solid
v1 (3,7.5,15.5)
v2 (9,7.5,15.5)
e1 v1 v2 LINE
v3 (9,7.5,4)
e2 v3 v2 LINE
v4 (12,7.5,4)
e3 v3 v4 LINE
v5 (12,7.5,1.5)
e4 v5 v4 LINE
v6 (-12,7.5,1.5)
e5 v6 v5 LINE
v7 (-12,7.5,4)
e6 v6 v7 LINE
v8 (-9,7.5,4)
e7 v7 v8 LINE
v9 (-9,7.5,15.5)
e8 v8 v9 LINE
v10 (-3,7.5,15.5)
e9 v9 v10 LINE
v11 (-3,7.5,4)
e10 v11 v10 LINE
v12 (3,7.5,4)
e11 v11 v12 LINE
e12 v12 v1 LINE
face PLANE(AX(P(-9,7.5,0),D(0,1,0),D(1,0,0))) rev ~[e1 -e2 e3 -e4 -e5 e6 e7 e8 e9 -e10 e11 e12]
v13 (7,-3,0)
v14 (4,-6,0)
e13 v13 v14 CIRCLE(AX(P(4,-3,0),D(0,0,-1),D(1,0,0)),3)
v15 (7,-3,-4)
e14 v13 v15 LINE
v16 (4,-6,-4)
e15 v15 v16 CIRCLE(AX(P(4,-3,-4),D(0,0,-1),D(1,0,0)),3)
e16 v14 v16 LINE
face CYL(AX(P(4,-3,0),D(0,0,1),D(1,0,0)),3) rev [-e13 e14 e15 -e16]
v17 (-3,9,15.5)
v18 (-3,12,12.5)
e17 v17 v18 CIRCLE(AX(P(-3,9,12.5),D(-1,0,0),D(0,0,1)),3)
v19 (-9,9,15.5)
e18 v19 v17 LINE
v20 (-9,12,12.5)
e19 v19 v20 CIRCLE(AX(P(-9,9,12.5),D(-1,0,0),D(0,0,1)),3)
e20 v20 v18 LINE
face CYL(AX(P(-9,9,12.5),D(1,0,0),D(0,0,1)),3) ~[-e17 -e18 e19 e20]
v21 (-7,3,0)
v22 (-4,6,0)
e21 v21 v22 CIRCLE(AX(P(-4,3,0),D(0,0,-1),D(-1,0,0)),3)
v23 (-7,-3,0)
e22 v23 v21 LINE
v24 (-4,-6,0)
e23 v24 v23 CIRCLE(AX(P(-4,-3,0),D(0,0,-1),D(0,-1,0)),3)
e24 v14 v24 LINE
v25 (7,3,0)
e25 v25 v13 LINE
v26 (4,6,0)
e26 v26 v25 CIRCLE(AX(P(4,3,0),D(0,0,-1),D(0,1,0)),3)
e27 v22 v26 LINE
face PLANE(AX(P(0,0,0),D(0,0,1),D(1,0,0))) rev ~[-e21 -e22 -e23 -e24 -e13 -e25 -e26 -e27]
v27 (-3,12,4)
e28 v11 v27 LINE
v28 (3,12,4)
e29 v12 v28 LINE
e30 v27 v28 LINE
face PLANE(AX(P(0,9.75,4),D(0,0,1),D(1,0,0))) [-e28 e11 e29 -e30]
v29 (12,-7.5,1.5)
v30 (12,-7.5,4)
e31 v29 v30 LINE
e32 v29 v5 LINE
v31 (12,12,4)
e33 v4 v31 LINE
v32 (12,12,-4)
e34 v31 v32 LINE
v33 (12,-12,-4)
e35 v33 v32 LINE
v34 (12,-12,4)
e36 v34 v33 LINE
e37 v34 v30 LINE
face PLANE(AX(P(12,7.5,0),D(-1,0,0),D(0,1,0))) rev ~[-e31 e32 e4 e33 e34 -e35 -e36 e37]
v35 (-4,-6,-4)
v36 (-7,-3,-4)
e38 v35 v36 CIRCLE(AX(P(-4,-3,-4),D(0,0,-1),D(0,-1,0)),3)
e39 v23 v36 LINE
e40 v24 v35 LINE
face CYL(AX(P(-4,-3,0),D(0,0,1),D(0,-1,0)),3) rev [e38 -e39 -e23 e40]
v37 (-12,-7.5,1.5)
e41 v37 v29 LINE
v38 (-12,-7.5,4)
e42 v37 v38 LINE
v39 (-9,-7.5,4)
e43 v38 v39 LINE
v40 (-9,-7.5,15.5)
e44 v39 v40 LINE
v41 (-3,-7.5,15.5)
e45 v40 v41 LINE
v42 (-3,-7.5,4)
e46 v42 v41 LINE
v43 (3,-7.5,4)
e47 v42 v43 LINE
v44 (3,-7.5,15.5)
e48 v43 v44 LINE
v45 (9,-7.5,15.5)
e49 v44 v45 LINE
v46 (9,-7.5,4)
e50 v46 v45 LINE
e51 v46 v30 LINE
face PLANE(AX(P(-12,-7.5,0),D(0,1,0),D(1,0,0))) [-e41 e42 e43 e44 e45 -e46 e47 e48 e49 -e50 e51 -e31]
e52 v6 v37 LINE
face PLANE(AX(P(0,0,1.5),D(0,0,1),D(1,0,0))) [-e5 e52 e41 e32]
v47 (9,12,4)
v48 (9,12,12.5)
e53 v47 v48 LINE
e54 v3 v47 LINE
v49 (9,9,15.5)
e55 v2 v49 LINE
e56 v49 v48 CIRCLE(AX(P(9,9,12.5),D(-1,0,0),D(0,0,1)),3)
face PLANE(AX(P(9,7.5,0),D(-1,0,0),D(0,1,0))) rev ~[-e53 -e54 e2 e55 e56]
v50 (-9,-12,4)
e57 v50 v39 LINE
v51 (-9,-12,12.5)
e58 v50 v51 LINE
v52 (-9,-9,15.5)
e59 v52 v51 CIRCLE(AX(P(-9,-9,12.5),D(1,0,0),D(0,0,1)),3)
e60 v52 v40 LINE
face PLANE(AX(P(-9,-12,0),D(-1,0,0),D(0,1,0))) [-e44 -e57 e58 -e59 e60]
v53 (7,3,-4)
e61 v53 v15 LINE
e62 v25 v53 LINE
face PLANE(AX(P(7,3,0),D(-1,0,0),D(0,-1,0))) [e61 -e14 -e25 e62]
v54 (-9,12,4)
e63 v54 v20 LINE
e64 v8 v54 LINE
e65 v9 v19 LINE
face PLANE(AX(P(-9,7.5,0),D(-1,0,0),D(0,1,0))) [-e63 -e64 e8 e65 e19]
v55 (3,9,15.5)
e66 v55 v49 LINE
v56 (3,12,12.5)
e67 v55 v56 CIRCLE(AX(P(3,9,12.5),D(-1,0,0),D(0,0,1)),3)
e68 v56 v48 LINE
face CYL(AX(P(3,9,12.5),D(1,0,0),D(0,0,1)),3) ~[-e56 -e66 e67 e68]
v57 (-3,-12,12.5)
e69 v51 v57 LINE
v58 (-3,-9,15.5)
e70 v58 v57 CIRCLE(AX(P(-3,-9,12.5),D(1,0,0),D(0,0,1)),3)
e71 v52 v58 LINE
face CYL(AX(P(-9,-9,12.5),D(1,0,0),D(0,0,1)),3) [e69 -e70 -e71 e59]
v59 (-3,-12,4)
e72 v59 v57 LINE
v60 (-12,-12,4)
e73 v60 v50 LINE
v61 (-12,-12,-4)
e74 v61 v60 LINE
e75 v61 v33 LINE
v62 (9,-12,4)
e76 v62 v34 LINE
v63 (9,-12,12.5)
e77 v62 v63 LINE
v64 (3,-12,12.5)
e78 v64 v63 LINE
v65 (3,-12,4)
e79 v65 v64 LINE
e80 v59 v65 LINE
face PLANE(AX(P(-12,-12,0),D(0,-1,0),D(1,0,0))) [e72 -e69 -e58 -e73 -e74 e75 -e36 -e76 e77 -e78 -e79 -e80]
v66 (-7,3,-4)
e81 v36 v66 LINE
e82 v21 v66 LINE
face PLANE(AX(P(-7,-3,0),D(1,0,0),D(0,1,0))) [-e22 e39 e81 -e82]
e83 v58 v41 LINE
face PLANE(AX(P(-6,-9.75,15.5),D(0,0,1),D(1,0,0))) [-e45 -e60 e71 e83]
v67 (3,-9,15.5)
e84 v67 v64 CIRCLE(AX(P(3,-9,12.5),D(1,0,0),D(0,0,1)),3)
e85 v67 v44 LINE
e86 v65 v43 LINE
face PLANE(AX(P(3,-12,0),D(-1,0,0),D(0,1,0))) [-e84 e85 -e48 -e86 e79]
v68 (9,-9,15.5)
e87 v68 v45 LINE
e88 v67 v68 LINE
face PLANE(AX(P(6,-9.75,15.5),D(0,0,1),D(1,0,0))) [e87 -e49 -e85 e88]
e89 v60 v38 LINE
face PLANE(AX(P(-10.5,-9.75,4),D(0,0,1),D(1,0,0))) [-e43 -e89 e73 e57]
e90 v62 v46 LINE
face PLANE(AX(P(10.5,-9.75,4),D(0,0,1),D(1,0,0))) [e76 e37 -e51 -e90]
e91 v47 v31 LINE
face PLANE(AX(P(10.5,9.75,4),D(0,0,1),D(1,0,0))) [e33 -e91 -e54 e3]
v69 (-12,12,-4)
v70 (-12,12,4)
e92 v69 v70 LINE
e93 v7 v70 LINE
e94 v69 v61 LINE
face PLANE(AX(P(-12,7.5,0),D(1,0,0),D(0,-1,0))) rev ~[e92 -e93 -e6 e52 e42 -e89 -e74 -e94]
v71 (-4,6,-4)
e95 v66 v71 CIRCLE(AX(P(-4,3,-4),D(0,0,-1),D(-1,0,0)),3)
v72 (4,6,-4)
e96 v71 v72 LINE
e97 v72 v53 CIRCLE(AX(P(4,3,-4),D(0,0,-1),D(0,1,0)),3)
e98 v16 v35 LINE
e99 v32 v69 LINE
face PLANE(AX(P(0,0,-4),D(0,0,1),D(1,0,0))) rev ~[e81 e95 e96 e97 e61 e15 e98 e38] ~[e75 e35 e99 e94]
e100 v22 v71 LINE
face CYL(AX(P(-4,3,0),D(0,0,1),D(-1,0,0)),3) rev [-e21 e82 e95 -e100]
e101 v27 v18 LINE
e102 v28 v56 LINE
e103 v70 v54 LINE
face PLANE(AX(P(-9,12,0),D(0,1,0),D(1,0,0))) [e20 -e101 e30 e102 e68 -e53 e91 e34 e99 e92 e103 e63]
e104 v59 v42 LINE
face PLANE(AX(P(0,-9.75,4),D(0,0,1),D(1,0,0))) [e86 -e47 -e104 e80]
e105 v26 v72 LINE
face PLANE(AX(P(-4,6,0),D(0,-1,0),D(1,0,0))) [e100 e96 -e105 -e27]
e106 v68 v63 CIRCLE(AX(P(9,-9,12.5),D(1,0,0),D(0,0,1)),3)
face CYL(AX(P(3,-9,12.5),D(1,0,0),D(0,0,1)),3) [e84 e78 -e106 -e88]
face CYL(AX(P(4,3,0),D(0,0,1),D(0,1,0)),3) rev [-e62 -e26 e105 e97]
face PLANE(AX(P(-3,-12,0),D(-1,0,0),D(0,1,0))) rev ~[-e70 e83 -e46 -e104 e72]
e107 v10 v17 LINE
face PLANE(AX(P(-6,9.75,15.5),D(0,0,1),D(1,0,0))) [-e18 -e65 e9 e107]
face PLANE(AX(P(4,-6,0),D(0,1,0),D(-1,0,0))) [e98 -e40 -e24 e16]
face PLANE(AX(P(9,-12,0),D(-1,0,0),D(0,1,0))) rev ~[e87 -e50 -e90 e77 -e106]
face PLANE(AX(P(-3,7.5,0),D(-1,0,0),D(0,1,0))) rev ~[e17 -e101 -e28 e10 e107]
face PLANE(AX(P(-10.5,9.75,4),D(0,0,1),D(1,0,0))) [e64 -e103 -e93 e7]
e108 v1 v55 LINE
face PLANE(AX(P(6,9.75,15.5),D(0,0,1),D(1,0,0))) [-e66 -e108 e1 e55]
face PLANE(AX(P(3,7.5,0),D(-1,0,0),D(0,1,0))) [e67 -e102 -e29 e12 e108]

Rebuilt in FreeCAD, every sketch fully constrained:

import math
import FreeCAD as App
import Part
import Sketcher
from FreeCAD import Vector
Q = App.Units.Quantity


def edges_at(feature, points):
    """Names of the edges that pass closest to the given points."""
    edges = feature.Shape.Edges
    near = lambda p: min(range(len(edges)), key=lambda i: edges[i].distToShape(Part.Vertex(*p))[0])
    return sorted({f"Edge{near(p) + 1}" for p in points})

doc = App.newDocument("Part")
body = doc.addObject("PartDesign::Body", "Body")

sketch1 = body.newObject("Sketcher::SketchObject", "Sketch")
sketch1.AttachmentSupport = (doc.getObject("XY_Plane"), [""])
sketch1.MapMode = "FlatFace"
sketch1.addGeometry(Part.LineSegment(Vector(-12, 12, 0), Vector(-12, -12, 0)), False)
sketch1.addGeometry(Part.LineSegment(Vector(-12, -12, 0), Vector(12, -12, 0)), False)
sketch1.addGeometry(Part.LineSegment(Vector(12, -12, 0), Vector(12, 12, 0)), False)
sketch1.addGeometry(Part.LineSegment(Vector(12, 12, 0), Vector(-12, 12, 0)), False)
sketch1.addGeometry(Part.LineSegment(Vector(7, 3, 0), Vector(7, -3, 0)), False)
sketch1.addGeometry(Part.ArcOfCircle(Part.Circle(Vector(4, -3, 0), Vector(0, 0, 1), 3), math.radians(-90), math.radians(0)), False)
sketch1.addGeometry(Part.LineSegment(Vector(4, -6, 0), Vector(-4, -6, 0)), False)
sketch1.addGeometry(Part.ArcOfCircle(Part.Circle(Vector(-4, -3, 0), Vector(0, 0, 1), 3), math.radians(180), math.radians(270)), False)
sketch1.addGeometry(Part.LineSegment(Vector(-7, -3, 0), Vector(-7, 3, 0)), False)
sketch1.addGeometry(Part.ArcOfCircle(Part.Circle(Vector(-4, 3, 0), Vector(0, 0, 1), 3), math.radians(90), math.radians(180)), False)
sketch1.addGeometry(Part.LineSegment(Vector(-4, 6, 0), Vector(4, 6, 0)), False)
sketch1.addGeometry(Part.ArcOfCircle(Part.Circle(Vector(4, 3, 0), Vector(0, 0, 1), 3), math.radians(0), math.radians(90)), False)
sketch1.addConstraint(Sketcher.Constraint("Coincident", 0, 2, 1, 1))
sketch1.addConstraint(Sketcher.Constraint("Coincident", 1, 2, 2, 1))
sketch1.addConstraint(Sketcher.Constraint("Coincident", 2, 2, 3, 1))
sketch1.addConstraint(Sketcher.Constraint("Coincident", 3, 2, 0, 1))
sketch1.addConstraint(Sketcher.Constraint("Tangent", 4, 2, 5, 2))
sketch1.addConstraint(Sketcher.Constraint("Tangent", 5, 1, 6, 1))
sketch1.addConstraint(Sketcher.Constraint("Tangent", 6, 2, 7, 2))
sketch1.addConstraint(Sketcher.Constraint("Tangent", 7, 1, 8, 1))
sketch1.addConstraint(Sketcher.Constraint("Tangent", 8, 2, 9, 2))
sketch1.addConstraint(Sketcher.Constraint("Tangent", 9, 1, 10, 1))
sketch1.addConstraint(Sketcher.Constraint("Tangent", 10, 2, 11, 2))
sketch1.addConstraint(Sketcher.Constraint("Tangent", 11, 1, 4, 1))
sketch1.addConstraint(Sketcher.Constraint("Vertical", 0))
sketch1.addConstraint(Sketcher.Constraint("Horizontal", 1))
sketch1.addConstraint(Sketcher.Constraint("Vertical", 2))
sketch1.addConstraint(Sketcher.Constraint("Horizontal", 3))
sketch1.addConstraint(Sketcher.Constraint("Vertical", 4))
sketch1.addConstraint(Sketcher.Constraint("Horizontal", 6))
sketch1.addConstraint(Sketcher.Constraint("Vertical", 8))
sketch1.addConstraint(Sketcher.Constraint("Horizontal", 10))
sketch1.addConstraint(Sketcher.Constraint("Equal", 5, 7))
sketch1.addConstraint(Sketcher.Constraint("Equal", 7, 9))
sketch1.addConstraint(Sketcher.Constraint("Equal", 9, 11))
sketch1.addConstraint(Sketcher.Constraint("Symmetric", 5, 3, 9, 3, -1, 1))
sketch1.addConstraint(Sketcher.Constraint("Symmetric", 0, 2, 2, 2, -1, 1))
sketch1.addConstraint(Sketcher.Constraint("Equal", 3, 0))
sketch1.addConstraint(Sketcher.Constraint("Radius", 5, Q("3 mm")))
sketch1.addConstraint(Sketcher.Constraint("DistanceX", 1, 1, 1, 2, Q("24 mm")))
sketch1.addConstraint(Sketcher.Constraint("DistanceX", 6, 2, 6, 1, Q("8 mm")))
sketch1.addConstraint(Sketcher.Constraint("DistanceY", 4, 2, 4, 1, Q("6 mm")))
pad1 = body.newObject("PartDesign::Pad", "Pad")
pad1.Profile = sketch1
pad1.Length = 4
pad1.Reversed = True

sketch2 = body.newObject("Sketcher::SketchObject", "Sketch001")
sketch2.AttachmentSupport = (doc.getObject("XY_Plane"), [""])
sketch2.MapMode = "FlatFace"
sketch2.addGeometry(Part.LineSegment(Vector(12, -8, 0), Vector(12, 8, 0)), False)
sketch2.addGeometry(Part.LineSegment(Vector(12, 8, 0), Vector(-12, 8, 0)), False)
sketch2.addGeometry(Part.LineSegment(Vector(-12, 8, 0), Vector(-12, -8, 0)), False)
sketch2.addGeometry(Part.LineSegment(Vector(-12, -8, 0), Vector(12, -8, 0)), False)
sketch2.addConstraint(Sketcher.Constraint("Coincident", 0, 2, 1, 1))
sketch2.addConstraint(Sketcher.Constraint("Coincident", 1, 2, 2, 1))
sketch2.addConstraint(Sketcher.Constraint("Coincident", 2, 2, 3, 1))
sketch2.addConstraint(Sketcher.Constraint("Coincident", 3, 2, 0, 1))
sketch2.addConstraint(Sketcher.Constraint("Vertical", 0))
sketch2.addConstraint(Sketcher.Constraint("Horizontal", 1))
sketch2.addConstraint(Sketcher.Constraint("Vertical", 2))
sketch2.addConstraint(Sketcher.Constraint("Horizontal", 3))
sketch2.addConstraint(Sketcher.Constraint("Symmetric", 0, 2, 2, 2, -1, 1))
sketch2.addConstraint(Sketcher.Constraint("DistanceX", 1, 2, 1, 1, Q("24 mm")))
sketch2.addConstraint(Sketcher.Constraint("DistanceY", 0, 1, 0, 2, Q("15 mm")))
pad2 = body.newObject("PartDesign::Pad", "Pad001")
pad2.Profile = sketch2
pad2.Length = 1.5

sketch3 = body.newObject("Sketcher::SketchObject", "Sketch002")
sketch3.AttachmentSupport = (doc.getObject("XY_Plane"), [""])
sketch3.MapMode = "FlatFace"
sketch3.addGeometry(Part.LineSegment(Vector(9, 12, 0), Vector(9, 7.5, 0)), False)
sketch3.addGeometry(Part.LineSegment(Vector(9, 7.5, 0), Vector(12, 7.5, 0)), False)
sketch3.addGeometry(Part.LineSegment(Vector(12, 7.5, 0), Vector(12, 12, 0)), False)
sketch3.addGeometry(Part.LineSegment(Vector(12, 12, 0), Vector(9, 12, 0)), False)
sketch3.addGeometry(Part.LineSegment(Vector(-3, 12, 0), Vector(-3, 7.5, 0)), False)
sketch3.addGeometry(Part.LineSegment(Vector(-3, 7.5, 0), Vector(3, 7.5, 0)), False)
sketch3.addGeometry(Part.LineSegment(Vector(3, 7.5, 0), Vector(3, 12, 0)), False)
sketch3.addGeometry(Part.LineSegment(Vector(3, 12, 0), Vector(-3, 12, 0)), False)
sketch3.addGeometry(Part.LineSegment(Vector(-12, 12, 0), Vector(-12, 7.5, 0)), False)
sketch3.addGeometry(Part.LineSegment(Vector(-12, 7.5, 0), Vector(-9, 7.5, 0)), False)
sketch3.addGeometry(Part.LineSegment(Vector(-9, 7.5, 0), Vector(-9, 12, 0)), False)
sketch3.addGeometry(Part.LineSegment(Vector(-9, 12, 0), Vector(-12, 12, 0)), False)
sketch3.addGeometry(Part.LineSegment(Vector(-12, -7.5, 0), Vector(-12, -12, 0)), False)
sketch3.addGeometry(Part.LineSegment(Vector(-12, -12, 0), Vector(-9, -12, 0)), False)
sketch3.addGeometry(Part.LineSegment(Vector(-9, -12, 0), Vector(-9, -7.5, 0)), False)
sketch3.addGeometry(Part.LineSegment(Vector(-9, -7.5, 0), Vector(-12, -7.5, 0)), False)
sketch3.addGeometry(Part.LineSegment(Vector(-3, -7.5, 0), Vector(-3, -12, 0)), False)
sketch3.addGeometry(Part.LineSegment(Vector(-3, -12, 0), Vector(3, -12, 0)), False)
sketch3.addGeometry(Part.LineSegment(Vector(3, -12, 0), Vector(3, -7.5, 0)), False)
sketch3.addGeometry(Part.LineSegment(Vector(3, -7.5, 0), Vector(-3, -7.5, 0)), False)
sketch3.addGeometry(Part.LineSegment(Vector(9, -7.5, 0), Vector(9, -12, 0)), False)
sketch3.addGeometry(Part.LineSegment(Vector(9, -12, 0), Vector(12, -12, 0)), False)
sketch3.addGeometry(Part.LineSegment(Vector(12, -12, 0), Vector(12, -7.5, 0)), False)
sketch3.addGeometry(Part.LineSegment(Vector(12, -7.5, 0), Vector(9, -7.5, 0)), False)
sketch3.addConstraint(Sketcher.Constraint("Coincident", 0, 2, 1, 1))
sketch3.addConstraint(Sketcher.Constraint("Coincident", 1, 2, 2, 1))
sketch3.addConstraint(Sketcher.Constraint("Coincident", 2, 2, 3, 1))
sketch3.addConstraint(Sketcher.Constraint("Coincident", 3, 2, 0, 1))
sketch3.addConstraint(Sketcher.Constraint("Coincident", 4, 2, 5, 1))
sketch3.addConstraint(Sketcher.Constraint("Coincident", 5, 2, 6, 1))
sketch3.addConstraint(Sketcher.Constraint("Coincident", 6, 2, 7, 1))
sketch3.addConstraint(Sketcher.Constraint("Coincident", 7, 2, 4, 1))
sketch3.addConstraint(Sketcher.Constraint("Coincident", 8, 2, 9, 1))
sketch3.addConstraint(Sketcher.Constraint("Coincident", 9, 2, 10, 1))
sketch3.addConstraint(Sketcher.Constraint("Coincident", 10, 2, 11, 1))
sketch3.addConstraint(Sketcher.Constraint("Coincident", 11, 2, 8, 1))
sketch3.addConstraint(Sketcher.Constraint("Coincident", 12, 2, 13, 1))
sketch3.addConstraint(Sketcher.Constraint("Coincident", 13, 2, 14, 1))
sketch3.addConstraint(Sketcher.Constraint("Coincident", 14, 2, 15, 1))
sketch3.addConstraint(Sketcher.Constraint("Coincident", 15, 2, 12, 1))
sketch3.addConstraint(Sketcher.Constraint("Coincident", 16, 2, 17, 1))
sketch3.addConstraint(Sketcher.Constraint("Coincident", 17, 2, 18, 1))
sketch3.addConstraint(Sketcher.Constraint("Coincident", 18, 2, 19, 1))
sketch3.addConstraint(Sketcher.Constraint("Coincident", 19, 2, 16, 1))
sketch3.addConstraint(Sketcher.Constraint("Coincident", 20, 2, 21, 1))
sketch3.addConstraint(Sketcher.Constraint("Coincident", 21, 2, 22, 1))
sketch3.addConstraint(Sketcher.Constraint("Coincident", 22, 2, 23, 1))
sketch3.addConstraint(Sketcher.Constraint("Coincident", 23, 2, 20, 1))
sketch3.addConstraint(Sketcher.Constraint("Vertical", 0))
sketch3.addConstraint(Sketcher.Constraint("Horizontal", 1))
sketch3.addConstraint(Sketcher.Constraint("Vertical", 2))
sketch3.addConstraint(Sketcher.Constraint("Horizontal", 3))
sketch3.addConstraint(Sketcher.Constraint("Vertical", 4))
sketch3.addConstraint(Sketcher.Constraint("Horizontal", 5))
sketch3.addConstraint(Sketcher.Constraint("Vertical", 6))
sketch3.addConstraint(Sketcher.Constraint("Horizontal", 7))
sketch3.addConstraint(Sketcher.Constraint("Vertical", 8))
sketch3.addConstraint(Sketcher.Constraint("Horizontal", 9))
sketch3.addConstraint(Sketcher.Constraint("Vertical", 10))
sketch3.addConstraint(Sketcher.Constraint("Horizontal", 11))
sketch3.addConstraint(Sketcher.Constraint("Vertical", 12))
sketch3.addConstraint(Sketcher.Constraint("Horizontal", 13))
sketch3.addConstraint(Sketcher.Constraint("Vertical", 14))
sketch3.addConstraint(Sketcher.Constraint("Horizontal", 15))
sketch3.addConstraint(Sketcher.Constraint("Vertical", 16))
sketch3.addConstraint(Sketcher.Constraint("Horizontal", 17))
sketch3.addConstraint(Sketcher.Constraint("Vertical", 18))
sketch3.addConstraint(Sketcher.Constraint("Horizontal", 19))
sketch3.addConstraint(Sketcher.Constraint("Vertical", 20))
sketch3.addConstraint(Sketcher.Constraint("Horizontal", 21))
sketch3.addConstraint(Sketcher.Constraint("Vertical", 22))
sketch3.addConstraint(Sketcher.Constraint("Horizontal", 23))
sketch3.addConstraint(Sketcher.Constraint("Symmetric", 2, 2, 12, 2, -1, 1))
sketch3.addConstraint(Sketcher.Constraint("Symmetric", 0, 2, 14, 2, -1, 1))
sketch3.addConstraint(Sketcher.Constraint("Symmetric", 6, 2, 16, 2, -1, 1))
sketch3.addConstraint(Sketcher.Constraint("Symmetric", 4, 2, 18, 2, -1, 1))
sketch3.addConstraint(Sketcher.Constraint("Symmetric", 10, 2, 20, 2, -1, 1))
sketch3.addConstraint(Sketcher.Constraint("Symmetric", 8, 2, 22, 2, -1, 1))
sketch3.addConstraint(Sketcher.Constraint("Symmetric", 1, 2, 8, 2, -2))
sketch3.addConstraint(Sketcher.Constraint("Symmetric", 3, 2, 10, 2, -2))
sketch3.addConstraint(Sketcher.Constraint("Horizontal", 1, 2, 4, 2))
sketch3.addConstraint(Sketcher.Constraint("Horizontal", 3, 2, 6, 2))
sketch3.addConstraint(Sketcher.Constraint("Vertical", 7, 2, 16, 2))
sketch3.addConstraint(Sketcher.Constraint("DistanceX", 1, 1, 1, 2, Q("3 mm")))
sketch3.addConstraint(Sketcher.Constraint("DistanceX", 5, 1, 5, 2, Q("6 mm")))
sketch3.addConstraint(Sketcher.Constraint("DistanceY", 0, 2, 0, 1, Q("4.5 mm")))
sketch3.addConstraint(Sketcher.Constraint("DistanceX", -1, 1, 0, 2, Q("9 mm")))
sketch3.addConstraint(Sketcher.Constraint("DistanceY", -1, 1, 2, 2, Q("12 mm")))
pad3 = body.newObject("PartDesign::Pad", "Pad002")
pad3.Profile = sketch3
pad3.Length = 4

sketch4 = body.newObject("Sketcher::SketchObject", "Sketch003")
sketch4.AttachmentSupport = (doc.getObject("XY_Plane"), [""])
sketch4.MapMode = "FlatFace"
sketch4.addGeometry(Part.LineSegment(Vector(-9, 12, 0), Vector(-9, 7.5, 0)), False)
sketch4.addGeometry(Part.LineSegment(Vector(-9, 7.5, 0), Vector(-3, 7.5, 0)), False)
sketch4.addGeometry(Part.LineSegment(Vector(-3, 7.5, 0), Vector(-3, 12, 0)), False)
sketch4.addGeometry(Part.LineSegment(Vector(-3, 12, 0), Vector(-9, 12, 0)), False)
sketch4.addGeometry(Part.LineSegment(Vector(3, 12, 0), Vector(3, 7.5, 0)), False)
sketch4.addGeometry(Part.LineSegment(Vector(3, 7.5, 0), Vector(9, 7.5, 0)), False)
sketch4.addGeometry(Part.LineSegment(Vector(9, 7.5, 0), Vector(9, 12, 0)), False)
sketch4.addGeometry(Part.LineSegment(Vector(9, 12, 0), Vector(3, 12, 0)), False)
sketch4.addGeometry(Part.LineSegment(Vector(3, -7.5, 0), Vector(3, -12, 0)), False)
sketch4.addGeometry(Part.LineSegment(Vector(3, -12, 0), Vector(9, -12, 0)), False)
sketch4.addGeometry(Part.LineSegment(Vector(9, -12, 0), Vector(9, -7.5, 0)), False)
sketch4.addGeometry(Part.LineSegment(Vector(9, -7.5, 0), Vector(3, -7.5, 0)), False)
sketch4.addGeometry(Part.LineSegment(Vector(-9, -7.5, 0), Vector(-9, -12, 0)), False)
sketch4.addGeometry(Part.LineSegment(Vector(-9, -12, 0), Vector(-3, -12, 0)), False)
sketch4.addGeometry(Part.LineSegment(Vector(-3, -12, 0), Vector(-3, -7.5, 0)), False)
sketch4.addGeometry(Part.LineSegment(Vector(-3, -7.5, 0), Vector(-9, -7.5, 0)), False)
sketch4.addConstraint(Sketcher.Constraint("Coincident", 0, 2, 1, 1))
sketch4.addConstraint(Sketcher.Constraint("Coincident", 1, 2, 2, 1))
sketch4.addConstraint(Sketcher.Constraint("Coincident", 2, 2, 3, 1))
sketch4.addConstraint(Sketcher.Constraint("Coincident", 3, 2, 0, 1))
sketch4.addConstraint(Sketcher.Constraint("Coincident", 4, 2, 5, 1))
sketch4.addConstraint(Sketcher.Constraint("Coincident", 5, 2, 6, 1))
sketch4.addConstraint(Sketcher.Constraint("Coincident", 6, 2, 7, 1))
sketch4.addConstraint(Sketcher.Constraint("Coincident", 7, 2, 4, 1))
sketch4.addConstraint(Sketcher.Constraint("Coincident", 8, 2, 9, 1))
sketch4.addConstraint(Sketcher.Constraint("Coincident", 9, 2, 10, 1))
sketch4.addConstraint(Sketcher.Constraint("Coincident", 10, 2, 11, 1))
sketch4.addConstraint(Sketcher.Constraint("Coincident", 11, 2, 8, 1))
sketch4.addConstraint(Sketcher.Constraint("Coincident", 12, 2, 13, 1))
sketch4.addConstraint(Sketcher.Constraint("Coincident", 13, 2, 14, 1))
sketch4.addConstraint(Sketcher.Constraint("Coincident", 14, 2, 15, 1))
sketch4.addConstraint(Sketcher.Constraint("Coincident", 15, 2, 12, 1))
sketch4.addConstraint(Sketcher.Constraint("Vertical", 0))
sketch4.addConstraint(Sketcher.Constraint("Horizontal", 1))
sketch4.addConstraint(Sketcher.Constraint("Vertical", 2))
sketch4.addConstraint(Sketcher.Constraint("Horizontal", 3))
sketch4.addConstraint(Sketcher.Constraint("Vertical", 4))
sketch4.addConstraint(Sketcher.Constraint("Horizontal", 5))
sketch4.addConstraint(Sketcher.Constraint("Vertical", 6))
sketch4.addConstraint(Sketcher.Constraint("Horizontal", 7))
sketch4.addConstraint(Sketcher.Constraint("Vertical", 8))
sketch4.addConstraint(Sketcher.Constraint("Horizontal", 9))
sketch4.addConstraint(Sketcher.Constraint("Vertical", 10))
sketch4.addConstraint(Sketcher.Constraint("Horizontal", 11))
sketch4.addConstraint(Sketcher.Constraint("Vertical", 12))
sketch4.addConstraint(Sketcher.Constraint("Horizontal", 13))
sketch4.addConstraint(Sketcher.Constraint("Vertical", 14))
sketch4.addConstraint(Sketcher.Constraint("Horizontal", 15))
sketch4.addConstraint(Sketcher.Constraint("Symmetric", 2, 2, 8, 2, -1, 1))
sketch4.addConstraint(Sketcher.Constraint("Symmetric", 0, 2, 10, 2, -1, 1))
sketch4.addConstraint(Sketcher.Constraint("Symmetric", 6, 2, 12, 2, -1, 1))
sketch4.addConstraint(Sketcher.Constraint("Symmetric", 4, 2, 14, 2, -1, 1))
sketch4.addConstraint(Sketcher.Constraint("Symmetric", 1, 2, 4, 2, -2))
sketch4.addConstraint(Sketcher.Constraint("Symmetric", 3, 2, 6, 2, -2))
sketch4.addConstraint(Sketcher.Constraint("DistanceX", 1, 1, 1, 2, Q("6 mm")))
sketch4.addConstraint(Sketcher.Constraint("DistanceY", 0, 2, 0, 1, Q("4.5 mm")))
sketch4.addConstraint(Sketcher.Constraint("DistanceX", 0, 2, -1, 1, Q("9 mm")))
sketch4.addConstraint(Sketcher.Constraint("DistanceY", -1, 1, 2, 2, Q("12 mm")))
pad4 = body.newObject("PartDesign::Pad", "Pad003")
pad4.Profile = sketch4
pad4.Length = 15.5
doc.recompute()

fillet = body.newObject("PartDesign::Fillet", "Fillet")
fillet.Base = (pad4, edges_at(pad4, [
    (6, 12, 15.5),
    (-6, 12, 15.5),
    (6, -12, 15.5),
    (-6, -12, 15.5),
]))
fillet.Radius = 3

doc.recompute()
